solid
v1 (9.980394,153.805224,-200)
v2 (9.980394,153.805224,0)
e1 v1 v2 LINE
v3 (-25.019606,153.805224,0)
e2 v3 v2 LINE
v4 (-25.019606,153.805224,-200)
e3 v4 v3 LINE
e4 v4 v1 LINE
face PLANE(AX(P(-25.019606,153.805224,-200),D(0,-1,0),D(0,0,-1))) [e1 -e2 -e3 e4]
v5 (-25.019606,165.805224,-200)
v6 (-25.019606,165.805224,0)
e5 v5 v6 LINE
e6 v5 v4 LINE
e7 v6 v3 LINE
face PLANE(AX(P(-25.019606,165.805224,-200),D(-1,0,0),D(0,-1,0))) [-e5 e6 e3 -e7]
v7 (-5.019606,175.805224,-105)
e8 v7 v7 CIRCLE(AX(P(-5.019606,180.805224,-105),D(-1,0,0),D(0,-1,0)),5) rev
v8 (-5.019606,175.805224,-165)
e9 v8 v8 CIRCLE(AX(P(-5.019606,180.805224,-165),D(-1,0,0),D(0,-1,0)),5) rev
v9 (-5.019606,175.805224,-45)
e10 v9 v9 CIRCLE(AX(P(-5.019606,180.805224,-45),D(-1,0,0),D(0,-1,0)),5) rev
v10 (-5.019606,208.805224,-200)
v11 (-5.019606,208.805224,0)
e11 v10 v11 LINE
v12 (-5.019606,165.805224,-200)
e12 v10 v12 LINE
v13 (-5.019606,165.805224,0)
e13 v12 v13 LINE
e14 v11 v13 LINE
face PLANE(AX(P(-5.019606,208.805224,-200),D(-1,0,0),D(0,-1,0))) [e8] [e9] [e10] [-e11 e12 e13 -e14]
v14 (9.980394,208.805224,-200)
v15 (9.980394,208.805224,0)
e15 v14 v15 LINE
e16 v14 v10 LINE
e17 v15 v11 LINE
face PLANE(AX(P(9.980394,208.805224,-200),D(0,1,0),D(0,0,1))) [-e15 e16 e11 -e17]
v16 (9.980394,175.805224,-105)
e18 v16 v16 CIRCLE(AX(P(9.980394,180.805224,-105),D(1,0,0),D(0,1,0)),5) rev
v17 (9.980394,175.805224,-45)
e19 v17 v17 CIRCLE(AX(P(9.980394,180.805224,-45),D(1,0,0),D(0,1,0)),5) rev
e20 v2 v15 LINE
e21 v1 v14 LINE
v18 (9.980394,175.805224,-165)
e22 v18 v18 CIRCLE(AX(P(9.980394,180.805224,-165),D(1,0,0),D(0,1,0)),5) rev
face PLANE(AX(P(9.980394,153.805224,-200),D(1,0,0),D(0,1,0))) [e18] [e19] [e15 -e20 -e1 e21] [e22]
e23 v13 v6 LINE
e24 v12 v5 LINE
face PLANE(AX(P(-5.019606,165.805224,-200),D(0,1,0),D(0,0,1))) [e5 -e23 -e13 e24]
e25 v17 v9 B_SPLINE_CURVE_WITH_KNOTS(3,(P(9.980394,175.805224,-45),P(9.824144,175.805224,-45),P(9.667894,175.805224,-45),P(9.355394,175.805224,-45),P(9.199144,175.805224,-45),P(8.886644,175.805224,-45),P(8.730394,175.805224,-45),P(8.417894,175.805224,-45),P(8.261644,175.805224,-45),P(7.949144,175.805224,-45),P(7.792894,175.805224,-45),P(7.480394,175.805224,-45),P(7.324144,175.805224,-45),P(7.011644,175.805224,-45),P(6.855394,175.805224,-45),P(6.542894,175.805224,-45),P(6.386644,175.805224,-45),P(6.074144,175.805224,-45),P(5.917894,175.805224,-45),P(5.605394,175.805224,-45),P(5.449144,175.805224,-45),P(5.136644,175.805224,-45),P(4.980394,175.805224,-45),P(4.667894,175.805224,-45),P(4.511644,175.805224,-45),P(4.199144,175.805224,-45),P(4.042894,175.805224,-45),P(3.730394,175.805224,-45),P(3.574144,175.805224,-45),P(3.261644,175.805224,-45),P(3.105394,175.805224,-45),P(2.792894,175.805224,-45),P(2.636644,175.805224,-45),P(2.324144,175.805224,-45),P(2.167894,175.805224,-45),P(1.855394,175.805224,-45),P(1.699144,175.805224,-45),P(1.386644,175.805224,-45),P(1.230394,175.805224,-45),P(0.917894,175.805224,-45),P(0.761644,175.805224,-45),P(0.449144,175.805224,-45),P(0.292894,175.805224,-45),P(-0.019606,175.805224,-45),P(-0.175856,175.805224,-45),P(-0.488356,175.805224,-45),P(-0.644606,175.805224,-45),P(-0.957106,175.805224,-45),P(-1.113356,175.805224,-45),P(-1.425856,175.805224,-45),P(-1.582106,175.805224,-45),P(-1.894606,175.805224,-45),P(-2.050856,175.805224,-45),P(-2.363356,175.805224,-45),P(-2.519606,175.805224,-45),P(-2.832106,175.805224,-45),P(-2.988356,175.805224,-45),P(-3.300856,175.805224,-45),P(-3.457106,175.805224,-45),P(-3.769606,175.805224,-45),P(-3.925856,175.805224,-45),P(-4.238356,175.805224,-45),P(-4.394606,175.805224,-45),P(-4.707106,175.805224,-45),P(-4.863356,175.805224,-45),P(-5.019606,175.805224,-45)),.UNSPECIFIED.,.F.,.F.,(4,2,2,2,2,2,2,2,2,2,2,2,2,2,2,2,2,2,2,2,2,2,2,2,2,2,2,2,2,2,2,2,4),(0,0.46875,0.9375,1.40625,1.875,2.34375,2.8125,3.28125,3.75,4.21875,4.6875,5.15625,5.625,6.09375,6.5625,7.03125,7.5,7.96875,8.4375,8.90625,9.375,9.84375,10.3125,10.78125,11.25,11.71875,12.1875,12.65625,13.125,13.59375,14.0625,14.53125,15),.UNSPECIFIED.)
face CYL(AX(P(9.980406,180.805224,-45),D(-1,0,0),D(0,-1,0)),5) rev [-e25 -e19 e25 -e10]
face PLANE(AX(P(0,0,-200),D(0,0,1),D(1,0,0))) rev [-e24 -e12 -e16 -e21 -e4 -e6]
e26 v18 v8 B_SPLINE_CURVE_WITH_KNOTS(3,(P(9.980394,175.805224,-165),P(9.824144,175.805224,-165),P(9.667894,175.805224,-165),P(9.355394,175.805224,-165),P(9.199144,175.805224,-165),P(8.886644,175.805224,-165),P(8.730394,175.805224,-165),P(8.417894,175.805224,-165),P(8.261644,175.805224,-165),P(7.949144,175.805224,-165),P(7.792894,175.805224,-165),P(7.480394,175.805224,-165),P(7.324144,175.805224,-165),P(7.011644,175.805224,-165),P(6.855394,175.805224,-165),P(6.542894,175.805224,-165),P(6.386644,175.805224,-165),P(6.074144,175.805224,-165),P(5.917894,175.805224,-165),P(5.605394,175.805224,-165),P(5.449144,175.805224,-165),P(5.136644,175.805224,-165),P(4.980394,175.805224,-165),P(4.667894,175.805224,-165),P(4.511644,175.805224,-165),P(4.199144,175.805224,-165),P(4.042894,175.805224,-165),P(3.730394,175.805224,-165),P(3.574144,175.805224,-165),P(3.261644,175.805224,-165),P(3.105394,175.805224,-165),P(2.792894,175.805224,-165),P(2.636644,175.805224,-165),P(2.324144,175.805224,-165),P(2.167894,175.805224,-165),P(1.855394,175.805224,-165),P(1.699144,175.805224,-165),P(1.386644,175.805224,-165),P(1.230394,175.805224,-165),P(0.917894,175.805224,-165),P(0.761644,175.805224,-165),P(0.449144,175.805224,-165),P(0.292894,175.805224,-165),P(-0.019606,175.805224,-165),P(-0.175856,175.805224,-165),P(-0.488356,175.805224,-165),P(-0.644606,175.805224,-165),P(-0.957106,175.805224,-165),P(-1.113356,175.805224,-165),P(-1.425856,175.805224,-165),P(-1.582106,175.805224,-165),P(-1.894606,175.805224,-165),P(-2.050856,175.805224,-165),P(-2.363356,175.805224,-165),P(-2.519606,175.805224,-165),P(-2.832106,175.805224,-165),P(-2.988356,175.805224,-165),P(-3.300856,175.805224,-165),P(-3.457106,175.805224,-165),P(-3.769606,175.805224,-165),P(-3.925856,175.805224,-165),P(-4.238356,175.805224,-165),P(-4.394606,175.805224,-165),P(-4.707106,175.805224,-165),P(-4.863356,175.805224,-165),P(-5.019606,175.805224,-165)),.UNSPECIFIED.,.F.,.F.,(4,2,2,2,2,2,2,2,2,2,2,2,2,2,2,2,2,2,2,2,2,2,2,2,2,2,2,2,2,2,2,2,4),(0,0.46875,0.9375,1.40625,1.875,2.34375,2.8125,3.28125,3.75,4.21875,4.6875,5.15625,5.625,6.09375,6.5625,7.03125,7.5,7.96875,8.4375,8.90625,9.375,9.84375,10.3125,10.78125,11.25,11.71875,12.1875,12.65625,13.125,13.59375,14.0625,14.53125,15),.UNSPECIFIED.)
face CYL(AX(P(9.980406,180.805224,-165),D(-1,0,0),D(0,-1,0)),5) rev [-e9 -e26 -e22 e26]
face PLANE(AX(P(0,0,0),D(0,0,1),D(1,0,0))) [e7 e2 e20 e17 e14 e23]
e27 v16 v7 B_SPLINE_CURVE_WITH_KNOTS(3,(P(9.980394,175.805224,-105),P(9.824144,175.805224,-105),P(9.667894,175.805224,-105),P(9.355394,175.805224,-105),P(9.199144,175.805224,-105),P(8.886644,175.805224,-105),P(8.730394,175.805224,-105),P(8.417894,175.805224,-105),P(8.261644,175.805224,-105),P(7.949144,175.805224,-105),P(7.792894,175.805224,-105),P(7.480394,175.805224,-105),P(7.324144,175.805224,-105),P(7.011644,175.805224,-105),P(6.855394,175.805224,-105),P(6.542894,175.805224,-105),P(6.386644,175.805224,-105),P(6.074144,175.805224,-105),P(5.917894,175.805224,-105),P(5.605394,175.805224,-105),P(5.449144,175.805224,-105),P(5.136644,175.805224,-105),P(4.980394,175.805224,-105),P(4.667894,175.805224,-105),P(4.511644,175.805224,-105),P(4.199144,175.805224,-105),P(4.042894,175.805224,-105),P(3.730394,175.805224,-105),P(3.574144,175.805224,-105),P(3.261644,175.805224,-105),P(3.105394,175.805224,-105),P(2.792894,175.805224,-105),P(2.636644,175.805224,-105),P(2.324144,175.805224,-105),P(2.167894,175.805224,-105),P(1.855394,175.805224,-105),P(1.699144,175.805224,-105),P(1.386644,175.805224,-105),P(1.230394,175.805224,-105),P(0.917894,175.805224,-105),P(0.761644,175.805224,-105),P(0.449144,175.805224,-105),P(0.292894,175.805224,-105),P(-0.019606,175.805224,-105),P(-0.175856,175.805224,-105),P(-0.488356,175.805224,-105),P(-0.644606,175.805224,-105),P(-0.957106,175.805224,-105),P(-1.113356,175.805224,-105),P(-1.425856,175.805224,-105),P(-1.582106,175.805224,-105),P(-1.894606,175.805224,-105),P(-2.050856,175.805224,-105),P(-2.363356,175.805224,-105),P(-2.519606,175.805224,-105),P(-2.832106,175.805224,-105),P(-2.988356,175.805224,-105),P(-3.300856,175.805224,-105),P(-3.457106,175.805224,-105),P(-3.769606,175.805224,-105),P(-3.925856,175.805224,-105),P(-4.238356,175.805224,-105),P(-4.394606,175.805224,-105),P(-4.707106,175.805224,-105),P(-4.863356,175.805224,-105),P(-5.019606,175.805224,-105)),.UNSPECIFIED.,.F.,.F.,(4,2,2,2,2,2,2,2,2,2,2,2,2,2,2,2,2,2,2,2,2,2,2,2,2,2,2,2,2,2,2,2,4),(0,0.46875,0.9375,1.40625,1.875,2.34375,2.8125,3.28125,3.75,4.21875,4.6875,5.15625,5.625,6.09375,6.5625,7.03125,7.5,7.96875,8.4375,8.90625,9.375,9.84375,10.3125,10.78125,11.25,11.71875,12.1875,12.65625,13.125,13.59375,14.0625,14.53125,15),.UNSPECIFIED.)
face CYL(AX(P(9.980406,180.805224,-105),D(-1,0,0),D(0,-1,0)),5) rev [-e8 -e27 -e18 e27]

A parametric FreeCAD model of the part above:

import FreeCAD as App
import Part
import Sketcher

V = App.Vector

doc = App.newDocument("Part")
body = doc.addObject("PartDesign::Body", "Body")

# Sketch on XY plane
sketch1 = doc.addObject("Sketcher::SketchObject", "Sketch")
body.addObject(sketch1)
sketch1.AttachmentSupport = (doc.XY_Plane, [""])
sketch1.MapMode = "FlatFace"
sketch1.addGeometry(Part.LineSegment(V(-5.019606, 208.805224, 0), V(-5.019606, 165.805224, 0)), False)
sketch1.addGeometry(Part.LineSegment(V(-5.019606, 165.805224, 0), V(-25.019606, 165.805224, 0)), False)
sketch1.addGeometry(Part.LineSegment(V(-25.019606, 165.805224, 0), V(-25.019606, 153.805224, 0)), False)
sketch1.addGeometry(Part.LineSegment(V(-25.019606, 153.805224, 0), V(9.980394, 153.805224, 0)), False)
sketch1.addGeometry(Part.LineSegment(V(9.980394, 153.805224, 0), V(9.980394, 208.805224, 0)), False)
sketch1.addGeometry(Part.LineSegment(V(9.980394, 208.805224, 0), V(-5.019606, 208.805224, 0)), False)
sketch1.addConstraint(Sketcher.Constraint("Coincident", 0, 2, 1, 1))
sketch1.addConstraint(Sketcher.Constraint("Coincident", 1, 2, 2, 1))
sketch1.addConstraint(Sketcher.Constraint("Coincident", 2, 2, 3, 1))
sketch1.addConstraint(Sketcher.Constraint("Coincident", 3, 2, 4, 1))
sketch1.addConstraint(Sketcher.Constraint("Coincident", 4, 2, 5, 1))
sketch1.addConstraint(Sketcher.Constraint("Coincident", 5, 2, 0, 1))
sketch1.addConstraint(Sketcher.Constraint("Vertical", 0))
sketch1.addConstraint(Sketcher.Constraint("Horizontal", 1))
sketch1.addConstraint(Sketcher.Constraint("Vertical", 2))
sketch1.addConstraint(Sketcher.Constraint("Horizontal", 3))
sketch1.addConstraint(Sketcher.Constraint("Vertical", 4))
sketch1.addConstraint(Sketcher.Constraint("Horizontal", 5))
sketch1.addConstraint(Sketcher.Constraint("DistanceX", 1, 2, 1, 1, 20.0))
sketch1.addConstraint(Sketcher.Constraint("DistanceX", 3, 1, 3, 2, 35.0))
sketch1.addConstraint(Sketcher.Constraint("DistanceY", 0, 2, 0, 1, 43.0))
sketch1.addConstraint(Sketcher.Constraint("DistanceY", 2, 2, 2, 1, 12.0))
sketch1.addConstraint(Sketcher.Constraint("DistanceX", 0, 2, -1, 1, 5.019606))
sketch1.addConstraint(Sketcher.Constraint("DistanceY", -1, 1, 0, 2, 165.805224))
pad1 = doc.addObject("PartDesign::Pad", "Pad")
body.addObject(pad1)
pad1.Profile = sketch1
pad1.Length = 200
pad1.Reversed = True

# Sketch on YZ plane
sketch2 = doc.addObject("Sketcher::SketchObject", "Sketch001")
body.addObject(sketch2)
sketch2.AttachmentSupport = (doc.YZ_Plane, [""])
sketch2.MapMode = "FlatFace"
sketch2.AttachmentOffset = App.Placement(V(0, 0, 9.980394), App.Rotation())
sketch2.addGeometry(Part.Circle(V(180.805224, -45, 0), V(0, 0, 1), 5), False)
sketch2.addConstraint(Sketcher.Constraint("Diameter", 0, 10.0))
sketch2.addConstraint(Sketcher.Constraint("DistanceY", 0, 3, -1, 1, 45.0))
sketch2.addConstraint(Sketcher.Constraint("DistanceX", -1, 1, 0, 3, 180.805224))
pocket1 = doc.addObject("PartDesign::Pocket", "Pocket")
body.addObject(pocket1)
pocket1.Profile = sketch2
pocket1.Type = "UpToFirst"

# Sketch on YZ plane
sketch3 = doc.addObject("Sketcher::SketchObject", "Sketch002")
body.addObject(sketch3)
sketch3.AttachmentSupport = (doc.YZ_Plane, [""])
sketch3.MapMode = "FlatFace"
sketch3.AttachmentOffset = App.Placement(V(0, 0, 9.980394), App.Rotation())
sketch3.addGeometry(Part.Circle(V(180.805224, -105, 0), V(0, 0, 1), 5), False)
sketch3.addConstraint(Sketcher.Constraint("Diameter", 0, 10.0))
sketch3.addConstraint(Sketcher.Constraint("DistanceY", 0, 3, -1, 1, 105.0))
sketch3.addConstraint(Sketcher.Constraint("DistanceX", -1, 1, 0, 3, 180.805224))
pocket2 = doc.addObject("PartDesign::Pocket", "Pocket001")
body.addObject(pocket2)
pocket2.Profile = sketch3
pocket2.Type = "UpToFirst"

# Sketch on YZ plane
sketch4 = doc.addObject("Sketcher::SketchObject", "Sketch003")
body.addObject(sketch4)
sketch4.AttachmentSupport = (doc.YZ_Plane, [""])
sketch4.MapMode = "FlatFace"
sketch4.AttachmentOffset = App.Placement(V(0, 0, 9.980394), App.Rotation())
sketch4.addGeometry(Part.Circle(V(180.805224, -165, 0), V(0, 0, 1), 5), False)
sketch4.addConstraint(Sketcher.Constraint("Diameter", 0, 10.0))
sketch4.addConstraint(Sketcher.Constraint("DistanceY", 0, 3, -1, 1, 165.0))
sketch4.addConstraint(Sketcher.Constraint("DistanceX", -1, 1, 0, 3, 180.805224))
pocket3 = doc.addObject("PartDesign::Pocket", "Pocket002")
body.addObject(pocket3)
pocket3.Profile = sketch4
pocket3.Type = "UpToFirst"

# Sketch on YZ plane
sketch5 = doc.addObject("Sketcher::SketchObject", "Sketch004")
body.addObject(sketch5)
sketch5.AttachmentSupport = (doc.YZ_Plane, [""])
sketch5.MapMode = "FlatFace"
sketch5.AttachmentOffset = App.Placement(V(0, 0, 9.980394), App.Rotation())
sketch5.addGeometry(Part.Circle(V(180.805224, -45, 0), V(0, 0, 1), 5), False)
sketch5.addGeometry(Part.Circle(V(180.805224, -105, 0), V(0, 0, 1), 5), False)
sketch5.addGeometry(Part.Circle(V(180.805224, -165, 0), V(0, 0, 1), 5), False)
sketch5.addConstraint(Sketcher.Constraint("Equal", 0, 1))
sketch5.addConstraint(Sketcher.Constraint("Equal", 1, 2))
sketch5.addConstraint(Sketcher.Constraint("Vertical", 0, 3, 1, 3))
sketch5.addConstraint(Sketcher.Constraint("Vertical", 1, 3, 2, 3))
sketch5.addConstraint(Sketcher.Constraint("Diameter", 0, 10.0))
sketch5.addConstraint(Sketcher.Constraint("DistanceY", 0, 3, -1, 1, 45.0))
sketch5.addConstraint(Sketcher.Constraint("DistanceY", 1, 3, -1, 1, 105.0))
sketch5.addConstraint(Sketcher.Constraint("DistanceY", 2, 3, -1, 1, 165.0))
sketch5.addConstraint(Sketcher.Constraint("DistanceX", -1, 1, 0, 3, 180.805224))
pocket4 = doc.addObject("PartDesign::Pocket", "Pocket003")
body.addObject(pocket4)
pocket4.Profile = sketch5
pocket4.Length = 292.246668
pocket4.Reversed = True

doc.recompute()
